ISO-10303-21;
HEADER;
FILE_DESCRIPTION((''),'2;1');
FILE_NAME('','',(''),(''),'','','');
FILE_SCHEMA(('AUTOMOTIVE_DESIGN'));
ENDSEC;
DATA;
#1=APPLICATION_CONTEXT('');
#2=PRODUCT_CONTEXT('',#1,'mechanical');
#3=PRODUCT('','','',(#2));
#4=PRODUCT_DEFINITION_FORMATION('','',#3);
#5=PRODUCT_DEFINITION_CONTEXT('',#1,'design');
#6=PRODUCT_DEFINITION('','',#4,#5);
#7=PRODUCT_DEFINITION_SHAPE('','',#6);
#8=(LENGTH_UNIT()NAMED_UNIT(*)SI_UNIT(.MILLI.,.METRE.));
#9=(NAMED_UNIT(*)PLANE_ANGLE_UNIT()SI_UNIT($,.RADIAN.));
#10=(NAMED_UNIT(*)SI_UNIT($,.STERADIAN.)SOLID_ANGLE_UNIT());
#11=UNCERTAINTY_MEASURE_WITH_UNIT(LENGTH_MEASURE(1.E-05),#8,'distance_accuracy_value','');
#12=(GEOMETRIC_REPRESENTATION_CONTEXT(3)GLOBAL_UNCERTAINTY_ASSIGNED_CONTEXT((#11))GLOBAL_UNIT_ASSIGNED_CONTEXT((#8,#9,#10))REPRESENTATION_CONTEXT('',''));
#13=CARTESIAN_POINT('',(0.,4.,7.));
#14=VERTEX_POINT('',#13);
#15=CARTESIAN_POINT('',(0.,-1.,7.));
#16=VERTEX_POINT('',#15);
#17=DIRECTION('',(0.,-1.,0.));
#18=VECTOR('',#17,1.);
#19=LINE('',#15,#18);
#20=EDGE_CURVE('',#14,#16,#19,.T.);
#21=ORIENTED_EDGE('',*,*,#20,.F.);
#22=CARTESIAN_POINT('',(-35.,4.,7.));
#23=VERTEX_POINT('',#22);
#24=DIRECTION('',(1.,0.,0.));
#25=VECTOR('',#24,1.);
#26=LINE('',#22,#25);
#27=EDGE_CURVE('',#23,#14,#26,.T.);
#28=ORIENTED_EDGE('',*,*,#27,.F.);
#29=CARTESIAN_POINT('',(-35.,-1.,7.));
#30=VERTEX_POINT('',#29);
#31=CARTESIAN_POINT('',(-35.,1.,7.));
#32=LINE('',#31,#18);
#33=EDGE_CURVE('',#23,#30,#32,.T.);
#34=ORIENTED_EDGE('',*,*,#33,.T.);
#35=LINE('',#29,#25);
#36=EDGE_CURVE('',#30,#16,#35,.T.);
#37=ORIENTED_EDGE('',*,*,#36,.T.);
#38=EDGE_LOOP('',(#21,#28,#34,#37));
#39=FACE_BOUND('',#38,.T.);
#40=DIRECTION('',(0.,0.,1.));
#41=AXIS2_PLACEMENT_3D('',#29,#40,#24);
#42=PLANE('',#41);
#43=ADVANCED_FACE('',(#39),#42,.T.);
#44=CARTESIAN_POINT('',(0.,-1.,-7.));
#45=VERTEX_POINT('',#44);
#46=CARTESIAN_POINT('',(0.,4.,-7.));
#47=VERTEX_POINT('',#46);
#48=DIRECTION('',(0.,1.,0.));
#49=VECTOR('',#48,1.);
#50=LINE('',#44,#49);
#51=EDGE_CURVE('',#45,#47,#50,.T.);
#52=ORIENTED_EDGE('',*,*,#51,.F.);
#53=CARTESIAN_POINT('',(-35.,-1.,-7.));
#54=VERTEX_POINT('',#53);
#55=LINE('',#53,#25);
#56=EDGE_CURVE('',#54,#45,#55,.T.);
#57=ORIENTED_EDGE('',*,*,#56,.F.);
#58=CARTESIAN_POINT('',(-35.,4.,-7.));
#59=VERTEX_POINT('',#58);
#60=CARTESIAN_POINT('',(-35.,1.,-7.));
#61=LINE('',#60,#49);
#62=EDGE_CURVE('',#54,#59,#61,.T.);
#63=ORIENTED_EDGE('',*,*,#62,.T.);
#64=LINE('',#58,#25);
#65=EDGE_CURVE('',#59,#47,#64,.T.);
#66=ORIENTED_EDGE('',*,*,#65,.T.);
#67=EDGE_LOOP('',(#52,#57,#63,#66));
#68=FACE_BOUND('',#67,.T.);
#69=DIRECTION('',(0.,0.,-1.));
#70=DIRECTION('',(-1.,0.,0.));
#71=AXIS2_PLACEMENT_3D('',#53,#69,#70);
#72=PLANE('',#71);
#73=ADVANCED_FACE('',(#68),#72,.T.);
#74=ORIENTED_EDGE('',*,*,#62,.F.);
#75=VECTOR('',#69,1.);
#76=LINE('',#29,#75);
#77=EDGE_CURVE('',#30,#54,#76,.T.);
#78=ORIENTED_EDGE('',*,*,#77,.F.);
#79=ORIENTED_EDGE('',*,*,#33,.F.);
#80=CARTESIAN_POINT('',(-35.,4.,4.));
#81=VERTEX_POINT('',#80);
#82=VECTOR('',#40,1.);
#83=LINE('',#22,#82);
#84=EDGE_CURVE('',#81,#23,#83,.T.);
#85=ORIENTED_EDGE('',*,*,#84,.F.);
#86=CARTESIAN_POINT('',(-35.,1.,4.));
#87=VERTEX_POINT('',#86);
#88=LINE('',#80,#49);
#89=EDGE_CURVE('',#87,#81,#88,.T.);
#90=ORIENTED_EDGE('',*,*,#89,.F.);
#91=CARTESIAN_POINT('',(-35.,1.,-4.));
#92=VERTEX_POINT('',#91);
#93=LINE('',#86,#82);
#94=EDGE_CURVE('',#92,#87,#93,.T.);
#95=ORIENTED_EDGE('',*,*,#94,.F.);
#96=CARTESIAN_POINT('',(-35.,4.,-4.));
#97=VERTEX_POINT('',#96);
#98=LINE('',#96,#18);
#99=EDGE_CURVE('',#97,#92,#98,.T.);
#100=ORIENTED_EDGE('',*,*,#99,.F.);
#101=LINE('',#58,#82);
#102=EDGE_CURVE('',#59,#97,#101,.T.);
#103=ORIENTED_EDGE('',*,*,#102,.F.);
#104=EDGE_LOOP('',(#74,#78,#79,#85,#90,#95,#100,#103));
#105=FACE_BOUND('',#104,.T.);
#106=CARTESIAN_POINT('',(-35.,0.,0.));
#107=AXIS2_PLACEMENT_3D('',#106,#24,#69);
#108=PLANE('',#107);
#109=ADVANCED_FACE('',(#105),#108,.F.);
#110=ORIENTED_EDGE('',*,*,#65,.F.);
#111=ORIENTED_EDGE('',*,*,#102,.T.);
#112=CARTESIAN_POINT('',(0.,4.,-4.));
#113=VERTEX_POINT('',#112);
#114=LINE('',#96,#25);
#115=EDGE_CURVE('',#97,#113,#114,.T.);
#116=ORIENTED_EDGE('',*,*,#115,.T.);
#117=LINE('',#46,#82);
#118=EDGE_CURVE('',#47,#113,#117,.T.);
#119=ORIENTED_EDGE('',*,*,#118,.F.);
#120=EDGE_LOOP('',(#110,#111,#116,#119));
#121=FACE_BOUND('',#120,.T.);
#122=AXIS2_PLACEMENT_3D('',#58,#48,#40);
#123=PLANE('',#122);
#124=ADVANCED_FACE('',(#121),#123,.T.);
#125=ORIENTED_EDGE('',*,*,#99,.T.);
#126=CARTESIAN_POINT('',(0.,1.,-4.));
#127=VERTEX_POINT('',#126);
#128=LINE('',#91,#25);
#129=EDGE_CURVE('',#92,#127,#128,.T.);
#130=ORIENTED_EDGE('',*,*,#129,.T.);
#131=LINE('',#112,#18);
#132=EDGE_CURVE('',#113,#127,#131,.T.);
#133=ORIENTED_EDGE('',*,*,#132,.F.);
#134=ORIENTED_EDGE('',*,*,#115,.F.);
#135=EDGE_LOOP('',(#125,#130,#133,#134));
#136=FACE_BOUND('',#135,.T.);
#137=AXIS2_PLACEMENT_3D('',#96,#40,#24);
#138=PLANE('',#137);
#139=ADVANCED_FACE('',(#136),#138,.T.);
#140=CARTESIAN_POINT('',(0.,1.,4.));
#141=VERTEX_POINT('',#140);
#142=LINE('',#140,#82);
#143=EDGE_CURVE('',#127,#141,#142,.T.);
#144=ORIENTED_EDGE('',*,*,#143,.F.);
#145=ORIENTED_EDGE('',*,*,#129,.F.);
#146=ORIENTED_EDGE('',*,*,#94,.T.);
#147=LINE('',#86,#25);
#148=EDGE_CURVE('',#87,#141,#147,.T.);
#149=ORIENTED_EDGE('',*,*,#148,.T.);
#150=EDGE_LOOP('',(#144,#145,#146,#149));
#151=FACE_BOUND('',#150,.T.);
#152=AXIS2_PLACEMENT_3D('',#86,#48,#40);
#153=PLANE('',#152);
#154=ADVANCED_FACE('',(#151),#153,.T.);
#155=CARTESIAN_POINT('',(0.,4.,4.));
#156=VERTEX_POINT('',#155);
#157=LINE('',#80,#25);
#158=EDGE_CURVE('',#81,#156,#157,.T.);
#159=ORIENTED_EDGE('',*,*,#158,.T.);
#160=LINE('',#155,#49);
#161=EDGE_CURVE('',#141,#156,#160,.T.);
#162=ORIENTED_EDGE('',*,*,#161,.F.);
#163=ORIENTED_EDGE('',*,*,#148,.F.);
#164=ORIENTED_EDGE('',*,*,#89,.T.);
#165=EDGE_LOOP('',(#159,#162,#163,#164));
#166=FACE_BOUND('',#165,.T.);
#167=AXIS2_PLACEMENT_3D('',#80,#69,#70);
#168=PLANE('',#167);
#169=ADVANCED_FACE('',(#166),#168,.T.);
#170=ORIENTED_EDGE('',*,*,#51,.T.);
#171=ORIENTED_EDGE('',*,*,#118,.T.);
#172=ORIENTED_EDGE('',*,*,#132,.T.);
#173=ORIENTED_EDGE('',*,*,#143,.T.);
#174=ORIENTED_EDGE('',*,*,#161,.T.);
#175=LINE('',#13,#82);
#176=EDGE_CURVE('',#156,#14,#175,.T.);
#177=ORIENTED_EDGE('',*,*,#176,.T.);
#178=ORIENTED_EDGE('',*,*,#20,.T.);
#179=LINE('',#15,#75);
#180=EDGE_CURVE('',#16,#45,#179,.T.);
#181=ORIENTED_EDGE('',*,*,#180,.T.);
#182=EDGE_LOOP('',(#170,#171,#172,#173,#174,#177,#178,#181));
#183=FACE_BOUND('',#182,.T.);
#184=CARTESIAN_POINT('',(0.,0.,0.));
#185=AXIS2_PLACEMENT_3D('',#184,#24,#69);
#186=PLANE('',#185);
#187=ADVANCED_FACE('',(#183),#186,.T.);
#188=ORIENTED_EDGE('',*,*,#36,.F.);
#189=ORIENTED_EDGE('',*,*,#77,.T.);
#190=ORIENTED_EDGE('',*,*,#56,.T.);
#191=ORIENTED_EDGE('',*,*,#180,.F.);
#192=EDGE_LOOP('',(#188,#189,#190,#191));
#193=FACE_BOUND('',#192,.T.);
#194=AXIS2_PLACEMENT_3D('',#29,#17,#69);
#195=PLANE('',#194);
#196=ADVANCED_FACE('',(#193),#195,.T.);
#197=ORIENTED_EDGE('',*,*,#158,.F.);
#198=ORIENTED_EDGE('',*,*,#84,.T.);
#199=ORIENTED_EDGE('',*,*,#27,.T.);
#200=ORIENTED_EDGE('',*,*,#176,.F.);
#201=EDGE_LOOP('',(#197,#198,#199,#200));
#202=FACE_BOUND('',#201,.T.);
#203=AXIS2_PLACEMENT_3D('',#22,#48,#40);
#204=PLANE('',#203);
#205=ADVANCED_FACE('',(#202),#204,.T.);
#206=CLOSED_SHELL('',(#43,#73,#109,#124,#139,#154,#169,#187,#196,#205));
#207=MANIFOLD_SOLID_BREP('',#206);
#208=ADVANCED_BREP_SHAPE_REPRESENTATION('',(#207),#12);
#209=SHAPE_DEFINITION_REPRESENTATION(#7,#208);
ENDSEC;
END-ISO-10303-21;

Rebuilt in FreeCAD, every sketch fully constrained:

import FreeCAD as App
import Part
import Sketcher

V = App.Vector
Q = App.Units.Quantity


def add_polygon(sketch, points):
    """Adds a closed chain of lines whose ends are joined by coincident constraints."""
    first, n = sketch.GeometryCount, len(points)
    for a, b in zip(points, points[1:] + points[:1]):
        sketch.addGeometry(Part.LineSegment(App.Vector(*a, 0), App.Vector(*b, 0)), False)
    for i in range(n):
        sketch.addConstraint(Sketcher.Constraint("Coincident", first + i, 2, first + (i + 1) % n, 1))

doc = App.newDocument("Part")
body = doc.addObject("PartDesign::Body", "Body")

# Sketch on YZ plane
sketch1 = doc.addObject("Sketcher::SketchObject", "Sketch")
body.addObject(sketch1)
sketch1.AttachmentSupport = (doc.YZ_Plane, [""])
sketch1.MapMode = "FlatFace"
add_polygon(sketch1, [(4, 7), (-1, 7), (-1, -7), (4, -7), (4, -4), (1, -4), (1, 4), (4, 4)])  # lines 0-7
sketch1.addConstraint([
    Sketcher.Constraint("Horizontal", 0),
    Sketcher.Constraint("Vertical", 1),
    Sketcher.Constraint("Horizontal", 2),
    Sketcher.Constraint("Vertical", 3),
    Sketcher.Constraint("Horizontal", 4),
    Sketcher.Constraint("Vertical", 5),
    Sketcher.Constraint("Horizontal", 6),
    Sketcher.Constraint("Vertical", 7),
    Sketcher.Constraint("Symmetric", 3, 2, 6, 2, -1),
    Sketcher.Constraint("Equal", 6, 3),
    Sketcher.Constraint("Equal", 3, 7),
    Sketcher.Constraint("DistanceX", 0, 2, 0, 1, Q("5 mm")),
    Sketcher.Constraint("DistanceX", 4, 2, 4, 1, Q("3 mm")),
    Sketcher.Constraint("DistanceY", 1, 2, 1, 1, Q("14 mm")),
    Sketcher.Constraint("DistanceX", 0, 2, -1, 1, Q("1 mm")),
])
pad1 = doc.addObject("PartDesign::Pad", "Pad")
body.addObject(pad1)
pad1.Profile = sketch1
pad1.Length = 35
pad1.Reversed = True

doc.recompute()
